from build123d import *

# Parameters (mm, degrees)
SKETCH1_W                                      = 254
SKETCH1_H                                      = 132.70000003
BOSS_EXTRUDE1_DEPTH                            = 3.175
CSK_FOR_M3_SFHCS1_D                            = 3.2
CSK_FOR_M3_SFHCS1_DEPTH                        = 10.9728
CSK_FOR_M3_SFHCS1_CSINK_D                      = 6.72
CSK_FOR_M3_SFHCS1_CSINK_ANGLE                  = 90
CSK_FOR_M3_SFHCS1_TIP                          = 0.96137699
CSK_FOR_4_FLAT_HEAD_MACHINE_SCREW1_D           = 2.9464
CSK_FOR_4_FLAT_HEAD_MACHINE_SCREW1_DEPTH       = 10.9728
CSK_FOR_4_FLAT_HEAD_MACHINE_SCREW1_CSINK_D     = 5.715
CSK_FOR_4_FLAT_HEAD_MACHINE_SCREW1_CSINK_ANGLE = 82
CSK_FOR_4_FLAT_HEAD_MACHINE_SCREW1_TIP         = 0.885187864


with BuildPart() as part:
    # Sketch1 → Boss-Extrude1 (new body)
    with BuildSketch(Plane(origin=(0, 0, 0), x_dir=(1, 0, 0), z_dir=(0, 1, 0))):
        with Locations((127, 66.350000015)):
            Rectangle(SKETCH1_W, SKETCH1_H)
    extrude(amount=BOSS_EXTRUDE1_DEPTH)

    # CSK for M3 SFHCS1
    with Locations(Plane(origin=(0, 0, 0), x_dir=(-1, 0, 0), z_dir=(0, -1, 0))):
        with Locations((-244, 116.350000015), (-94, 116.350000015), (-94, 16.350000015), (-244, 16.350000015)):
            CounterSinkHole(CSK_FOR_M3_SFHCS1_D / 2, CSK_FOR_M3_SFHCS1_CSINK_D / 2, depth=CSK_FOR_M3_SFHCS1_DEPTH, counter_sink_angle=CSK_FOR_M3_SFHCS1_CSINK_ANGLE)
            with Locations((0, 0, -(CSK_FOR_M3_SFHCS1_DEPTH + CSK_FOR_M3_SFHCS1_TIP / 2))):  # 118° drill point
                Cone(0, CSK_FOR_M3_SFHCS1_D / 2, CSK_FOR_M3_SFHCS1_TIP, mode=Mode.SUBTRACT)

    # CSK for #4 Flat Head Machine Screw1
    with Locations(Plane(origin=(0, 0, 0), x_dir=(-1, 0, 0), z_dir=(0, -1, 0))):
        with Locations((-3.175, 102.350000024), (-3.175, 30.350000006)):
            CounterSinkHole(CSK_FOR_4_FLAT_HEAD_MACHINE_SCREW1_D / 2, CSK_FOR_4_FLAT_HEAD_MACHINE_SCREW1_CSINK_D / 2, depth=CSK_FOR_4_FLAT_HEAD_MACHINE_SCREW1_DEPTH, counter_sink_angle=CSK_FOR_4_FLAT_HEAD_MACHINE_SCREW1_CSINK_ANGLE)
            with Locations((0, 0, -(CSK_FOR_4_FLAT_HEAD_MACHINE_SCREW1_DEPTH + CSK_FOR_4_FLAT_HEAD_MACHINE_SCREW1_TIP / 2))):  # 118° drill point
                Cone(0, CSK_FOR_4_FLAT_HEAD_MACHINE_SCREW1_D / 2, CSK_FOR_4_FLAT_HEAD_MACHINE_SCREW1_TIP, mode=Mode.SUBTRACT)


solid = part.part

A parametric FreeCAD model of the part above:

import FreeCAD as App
import Part
import Sketcher
Q = App.Units.Quantity

doc = App.newDocument("Part")
body = doc.addObject("PartDesign::Body", "Body")

sketch1 = body.newObject("Sketcher::SketchObject", "Sketch")
sketch1.AttachmentSupport = (doc.getObject("XZ_Plane"), [""])
sketch1.MapMode = "FlatFace"
sketch1.addGeometry(Part.LineSegment(App.Vector(0, -133, 0), App.Vector(0, 0, 0)), False)
sketch1.addGeometry(Part.LineSegment(App.Vector(0, 0, 0), App.Vector(254, 0, 0)), False)
sketch1.addGeometry(Part.LineSegment(App.Vector(254, 0, 0), App.Vector(254, -133, 0)), False)
sketch1.addGeometry(Part.LineSegment(App.Vector(254, -133, 0), App.Vector(0, -133, 0)), False)
sketch1.addConstraint(Sketcher.Constraint("Coincident", 0, 2, 1, 1))
sketch1.addConstraint(Sketcher.Constraint("Coincident", 1, 2, 2, 1))
sketch1.addConstraint(Sketcher.Constraint("Coincident", 2, 2, 3, 1))
sketch1.addConstraint(Sketcher.Constraint("Coincident", 3, 2, 0, 1))
sketch1.addConstraint(Sketcher.Constraint("Vertical", 0))
sketch1.addConstraint(Sketcher.Constraint("Horizontal", 1))
sketch1.addConstraint(Sketcher.Constraint("Vertical", 2))
sketch1.addConstraint(Sketcher.Constraint("Horizontal", 3))
sketch1.addConstraint(Sketcher.Constraint("Coincident", 0, 2, -1, 1))
sketch1.addConstraint(Sketcher.Constraint("DistanceX", 1, 1, 1, 2, Q("10 in")))
sketch1.addConstraint(Sketcher.Constraint("DistanceY", 0, 1, 0, 2, 132.7))
pad1 = body.newObject("PartDesign::Pad", "Pad")
pad1.Profile = sketch1
pad1.Length = Q("0.125 in")
pad1.Reversed = True

sketch2 = body.newObject("Sketcher::SketchObject", "Sketch001")
sketch2.AttachmentSupport = (doc.getObject("XZ_Plane"), [""])
sketch2.MapMode = "FlatFace"
sketch2.addGeometry(Part.Circle(App.Vector(244, -116.4, 0), App.Vector(0, 0, 1), 1.6), False)
sketch2.addGeometry(Part.Circle(App.Vector(94, -116.4, 0), App.Vector(0, 0, 1), 1.6), False)
sketch2.addGeometry(Part.Circle(App.Vector(94, -16.4, 0), App.Vector(0, 0, 1), 1.6), False)
sketch2.addGeometry(Part.Circle(App.Vector(244, -16.4, 0), App.Vector(0, 0, 1), 1.6), False)
sketch2.addConstraint(Sketcher.Constraint("Equal", 0, 1))
sketch2.addConstraint(Sketcher.Constraint("Equal", 1, 2))
sketch2.addConstraint(Sketcher.Constraint("Equal", 2, 3))
sketch2.addConstraint(Sketcher.Constraint("Horizontal", 0, 3, 1, 3))
sketch2.addConstraint(Sketcher.Constraint("Horizontal", 2, 3, 3, 3))
sketch2.addConstraint(Sketcher.Constraint("Vertical", 1, 3, 2, 3))
sketch2.addConstraint(Sketcher.Constraint("Vertical", 0, 3, 3, 3))
sketch2.addConstraint(Sketcher.Constraint("Diameter", 0, 3.2))
sketch2.addConstraint(Sketcher.Constraint("DistanceX", -1, 1, 0, 3, 244.0))
sketch2.addConstraint(Sketcher.Constraint("DistanceY", 0, 3, -1, 1, 116.35))
sketch2.addConstraint(Sketcher.Constraint("DistanceX", -1, 1, 1, 3, 94.0))
sketch2.addConstraint(Sketcher.Constraint("DistanceY", 2, 3, -1, 1, 16.35))
doc.recompute()
hole = body.newObject("PartDesign::Hole", "Hole")
hole.Profile = sketch2
hole.ThreadType = "None"
hole.Diameter = 3.2
hole.DepthType = "Dimension"
hole.Depth = Q("0.432 in")
hole.DrillPoint = "Angled"
hole.DrillPointAngle = 118
hole.HoleCutType = "Countersink"
hole.HoleCutDiameter = 6.72
hole.HoleCutCountersinkAngle = 90

sketch3 = body.newObject("Sketcher::SketchObject", "Sketch002")
sketch3.AttachmentSupport = (doc.getObject("XZ_Plane"), [""])
sketch3.MapMode = "FlatFace"
sketch3.addGeometry(Part.Circle(App.Vector(3.2, -102.4, 0), App.Vector(0, 0, 1), 1.5), False)
sketch3.addGeometry(Part.Circle(App.Vector(3.2, -30.4, 0), App.Vector(0, 0, 1), 1.5), False)
sketch3.addConstraint(Sketcher.Constraint("Equal", 0, 1))
sketch3.addConstraint(Sketcher.Constraint("Vertical", 0, 3, 1, 3))
sketch3.addConstraint(Sketcher.Constraint("Diameter", 0, Q("0.116 in")))
sketch3.addConstraint(Sketcher.Constraint("DistanceX", -1, 1, 0, 3, Q("0.125 in")))
sketch3.addConstraint(Sketcher.Constraint("DistanceY", 0, 3, -1, 1, 102.35))
sketch3.addConstraint(Sketcher.Constraint("DistanceY", 1, 3, -1, 1, 30.35))
doc.recompute()
hole2 = body.newObject("PartDesign::Hole", "Hole001")
hole2.Profile = sketch3
hole2.ThreadType = "None"
hole2.Diameter = Q("0.116 in")
hole2.DepthType = "Dimension"
hole2.Depth = Q("0.432 in")
hole2.DrillPoint = "Angled"
hole2.DrillPointAngle = 118
hole2.HoleCutType = "Countersink"
hole2.HoleCutDiameter = Q("0.225 in")
hole2.HoleCutCountersinkAngle = 82

doc.recompute()
